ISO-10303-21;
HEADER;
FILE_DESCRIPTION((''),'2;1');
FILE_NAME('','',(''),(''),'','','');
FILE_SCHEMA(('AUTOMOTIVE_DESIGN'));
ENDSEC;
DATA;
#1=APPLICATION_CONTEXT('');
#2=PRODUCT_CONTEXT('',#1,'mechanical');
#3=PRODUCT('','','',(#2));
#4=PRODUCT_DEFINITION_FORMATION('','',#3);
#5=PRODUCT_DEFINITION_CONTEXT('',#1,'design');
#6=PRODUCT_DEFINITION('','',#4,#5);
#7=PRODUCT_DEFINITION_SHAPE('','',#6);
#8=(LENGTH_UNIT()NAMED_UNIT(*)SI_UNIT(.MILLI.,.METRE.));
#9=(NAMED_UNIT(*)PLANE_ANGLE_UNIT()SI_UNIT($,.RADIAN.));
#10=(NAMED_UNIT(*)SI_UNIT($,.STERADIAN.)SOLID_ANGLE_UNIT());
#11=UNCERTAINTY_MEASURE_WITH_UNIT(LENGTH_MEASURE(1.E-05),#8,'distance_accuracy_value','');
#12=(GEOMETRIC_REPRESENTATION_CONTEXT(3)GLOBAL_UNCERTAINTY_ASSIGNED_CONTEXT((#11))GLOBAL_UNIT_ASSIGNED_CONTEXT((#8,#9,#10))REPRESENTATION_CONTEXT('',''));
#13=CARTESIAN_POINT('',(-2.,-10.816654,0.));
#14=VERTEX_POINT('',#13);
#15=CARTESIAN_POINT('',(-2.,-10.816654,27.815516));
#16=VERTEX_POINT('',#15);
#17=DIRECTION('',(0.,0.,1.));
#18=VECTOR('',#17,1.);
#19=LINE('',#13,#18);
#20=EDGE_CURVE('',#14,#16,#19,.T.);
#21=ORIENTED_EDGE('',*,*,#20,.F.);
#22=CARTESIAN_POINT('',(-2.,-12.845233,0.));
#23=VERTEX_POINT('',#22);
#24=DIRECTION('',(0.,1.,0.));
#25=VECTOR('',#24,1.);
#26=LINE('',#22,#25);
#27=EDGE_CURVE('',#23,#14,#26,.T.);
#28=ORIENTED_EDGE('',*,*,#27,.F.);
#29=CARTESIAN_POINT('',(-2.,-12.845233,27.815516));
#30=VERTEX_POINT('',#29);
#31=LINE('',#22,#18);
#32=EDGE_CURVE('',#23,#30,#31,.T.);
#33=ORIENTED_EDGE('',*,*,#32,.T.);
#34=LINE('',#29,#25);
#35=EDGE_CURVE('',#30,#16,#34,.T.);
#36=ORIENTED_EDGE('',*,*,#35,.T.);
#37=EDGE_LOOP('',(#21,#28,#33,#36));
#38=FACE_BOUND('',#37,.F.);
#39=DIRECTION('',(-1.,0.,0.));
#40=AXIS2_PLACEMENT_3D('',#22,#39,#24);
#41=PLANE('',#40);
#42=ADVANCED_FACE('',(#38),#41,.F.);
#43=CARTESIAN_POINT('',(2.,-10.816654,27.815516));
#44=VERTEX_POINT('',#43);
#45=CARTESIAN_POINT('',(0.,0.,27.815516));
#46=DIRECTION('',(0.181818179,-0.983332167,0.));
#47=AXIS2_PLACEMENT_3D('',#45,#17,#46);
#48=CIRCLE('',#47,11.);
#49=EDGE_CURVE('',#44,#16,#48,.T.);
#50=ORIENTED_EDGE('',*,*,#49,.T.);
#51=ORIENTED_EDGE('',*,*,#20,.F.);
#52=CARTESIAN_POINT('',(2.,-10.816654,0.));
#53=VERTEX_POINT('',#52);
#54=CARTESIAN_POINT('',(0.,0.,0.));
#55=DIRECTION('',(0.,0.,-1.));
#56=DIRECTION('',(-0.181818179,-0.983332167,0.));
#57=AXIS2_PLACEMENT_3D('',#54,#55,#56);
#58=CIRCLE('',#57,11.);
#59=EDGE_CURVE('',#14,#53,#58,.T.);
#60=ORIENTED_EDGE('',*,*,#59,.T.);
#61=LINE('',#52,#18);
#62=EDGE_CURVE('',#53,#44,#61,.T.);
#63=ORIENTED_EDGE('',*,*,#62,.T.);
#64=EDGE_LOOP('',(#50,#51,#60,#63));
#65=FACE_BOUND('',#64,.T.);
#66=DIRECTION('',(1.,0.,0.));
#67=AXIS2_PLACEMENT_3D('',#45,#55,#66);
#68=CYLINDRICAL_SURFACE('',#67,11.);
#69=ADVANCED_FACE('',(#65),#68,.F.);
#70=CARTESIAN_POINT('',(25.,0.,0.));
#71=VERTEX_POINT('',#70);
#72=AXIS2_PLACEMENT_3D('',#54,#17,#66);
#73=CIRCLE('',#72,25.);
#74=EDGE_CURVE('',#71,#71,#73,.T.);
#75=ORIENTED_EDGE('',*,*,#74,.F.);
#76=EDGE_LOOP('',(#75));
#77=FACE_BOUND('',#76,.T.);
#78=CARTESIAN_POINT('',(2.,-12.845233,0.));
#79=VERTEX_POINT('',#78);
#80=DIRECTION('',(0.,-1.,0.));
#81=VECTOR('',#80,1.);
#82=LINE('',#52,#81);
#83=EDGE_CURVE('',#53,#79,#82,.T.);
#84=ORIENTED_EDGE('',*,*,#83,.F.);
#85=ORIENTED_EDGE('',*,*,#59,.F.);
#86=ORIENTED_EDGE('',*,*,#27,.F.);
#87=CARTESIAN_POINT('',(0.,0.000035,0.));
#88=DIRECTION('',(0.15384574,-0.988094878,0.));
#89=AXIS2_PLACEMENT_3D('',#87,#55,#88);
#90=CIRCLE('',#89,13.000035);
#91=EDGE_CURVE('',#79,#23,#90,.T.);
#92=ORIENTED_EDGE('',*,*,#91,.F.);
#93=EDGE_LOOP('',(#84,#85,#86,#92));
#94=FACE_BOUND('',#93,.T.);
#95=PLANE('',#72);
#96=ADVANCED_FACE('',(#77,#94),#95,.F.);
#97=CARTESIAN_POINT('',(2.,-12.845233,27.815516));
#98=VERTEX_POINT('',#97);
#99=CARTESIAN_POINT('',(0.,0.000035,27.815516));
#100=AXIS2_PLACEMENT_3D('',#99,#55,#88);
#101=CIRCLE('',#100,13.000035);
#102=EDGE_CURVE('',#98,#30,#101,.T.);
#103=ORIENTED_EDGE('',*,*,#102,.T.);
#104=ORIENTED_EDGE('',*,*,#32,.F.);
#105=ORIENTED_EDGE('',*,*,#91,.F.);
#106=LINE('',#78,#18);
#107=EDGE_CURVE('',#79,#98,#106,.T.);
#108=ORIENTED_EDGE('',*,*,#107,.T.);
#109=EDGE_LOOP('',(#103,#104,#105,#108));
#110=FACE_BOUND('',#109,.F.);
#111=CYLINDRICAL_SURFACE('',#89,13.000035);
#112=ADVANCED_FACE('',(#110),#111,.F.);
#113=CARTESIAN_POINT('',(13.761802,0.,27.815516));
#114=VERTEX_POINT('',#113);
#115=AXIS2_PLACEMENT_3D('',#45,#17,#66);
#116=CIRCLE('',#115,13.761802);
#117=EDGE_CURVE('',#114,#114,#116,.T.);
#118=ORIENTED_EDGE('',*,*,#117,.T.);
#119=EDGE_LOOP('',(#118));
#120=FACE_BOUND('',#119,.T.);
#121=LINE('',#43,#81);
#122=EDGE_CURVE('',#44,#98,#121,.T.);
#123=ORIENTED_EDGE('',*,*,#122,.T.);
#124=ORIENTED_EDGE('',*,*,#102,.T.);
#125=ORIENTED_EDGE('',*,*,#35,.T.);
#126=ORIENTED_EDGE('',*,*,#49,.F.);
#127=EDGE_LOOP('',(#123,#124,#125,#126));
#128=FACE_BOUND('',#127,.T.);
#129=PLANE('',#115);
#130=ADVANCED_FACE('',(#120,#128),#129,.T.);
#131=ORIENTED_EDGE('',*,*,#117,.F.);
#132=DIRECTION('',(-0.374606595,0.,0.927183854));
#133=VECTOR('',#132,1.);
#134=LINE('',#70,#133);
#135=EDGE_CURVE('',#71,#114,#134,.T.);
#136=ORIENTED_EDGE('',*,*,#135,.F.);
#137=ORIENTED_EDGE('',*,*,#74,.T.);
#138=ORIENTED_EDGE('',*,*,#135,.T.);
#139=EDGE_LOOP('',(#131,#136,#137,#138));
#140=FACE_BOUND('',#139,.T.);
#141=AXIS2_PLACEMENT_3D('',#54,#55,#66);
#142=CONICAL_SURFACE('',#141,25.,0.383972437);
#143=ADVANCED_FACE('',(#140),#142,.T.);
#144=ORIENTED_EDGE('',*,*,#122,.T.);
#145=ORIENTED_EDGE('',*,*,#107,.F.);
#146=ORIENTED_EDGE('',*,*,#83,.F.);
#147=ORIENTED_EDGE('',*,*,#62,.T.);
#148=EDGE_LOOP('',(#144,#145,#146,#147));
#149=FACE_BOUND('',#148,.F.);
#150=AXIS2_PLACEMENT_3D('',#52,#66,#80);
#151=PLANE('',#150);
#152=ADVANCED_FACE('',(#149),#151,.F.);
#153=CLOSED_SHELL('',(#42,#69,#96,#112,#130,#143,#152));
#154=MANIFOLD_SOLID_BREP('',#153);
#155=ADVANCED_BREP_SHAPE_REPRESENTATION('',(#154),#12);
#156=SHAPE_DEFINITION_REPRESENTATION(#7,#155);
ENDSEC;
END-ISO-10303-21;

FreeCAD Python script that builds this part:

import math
import FreeCAD as App
import Part
import Sketcher

V = App.Vector
Q = App.Units.Quantity

doc = App.newDocument("Part")
params = doc.addObject("Spreadsheet::Sheet", "Params")
for row, (alias, value) in enumerate([
    ("sketch1_width", "14 mm"),
    ("sketch1_length", "30 mm"),
    ("revolution_angle", "360 deg"),
], start=1):
    params.set(f"A{row}", alias)
    params.set(f"B{row}", "=" + value)
    params.setAlias(f"B{row}", alias)

body = doc.addObject("PartDesign::Body", "Body")

sketch1 = body.newObject("Sketcher::SketchObject", "Sketch")
sketch1.AttachmentSupport = (doc.getObject("XZ_Plane"), [""])
sketch1.MapMode = "FlatFace"
sketch1.addGeometry([
    Part.LineSegment(V(11, 27.8, 0), V(11, 0, 0)),
    Part.LineSegment(V(11, 0, 0), V(25, 0, 0)),
    Part.LineSegment(V(25, 0, 0), V(13.8, 27.8, 0)),
    Part.LineSegment(V(13.8, 27.8, 0), V(11, 27.8, 0)),
], False)
sketch1.addConstraint([
    Sketcher.Constraint("Coincident", 0, 2, 1, 1),
    Sketcher.Constraint("Coincident", 1, 2, 2, 1),
    Sketcher.Constraint("Coincident", 2, 2, 3, 1),
    Sketcher.Constraint("Coincident", 3, 2, 0, 1),
    Sketcher.Constraint("Vertical", 0),
    Sketcher.Constraint("Horizontal", 1),
    Sketcher.Constraint("Horizontal", 3),
    Sketcher.Constraint("PointOnObject", 0, 2, -1),
    Sketcher.Constraint("DistanceX", 1, 1, 1, 2, Q("14 mm")),
    Sketcher.Constraint("Angle", 2, Q("112 deg")),
    Sketcher.Constraint("Distance", 2, Q("30 mm")),
    Sketcher.Constraint("DistanceX", -1, 1, 0, 2, Q("11 mm")),
])
sketch1.setExpression("Constraints[8]", "Params.sketch1_width")
sketch1.setExpression("Constraints[10]", "Params.sketch1_length")
revolution = body.newObject("PartDesign::Revolution", "Revolution")
revolution.Profile = sketch1
revolution.ReferenceAxis = (sketch1, ["V_Axis"])
revolution.setExpression("Angle", "Params.revolution_angle")

sketch2 = body.newObject("Sketcher::SketchObject", "Sketch001")
sketch2.AttachmentSupport = (doc.getObject("XY_Plane"), [""])
sketch2.MapMode = "FlatFace"
sketch2.addGeometry([
    Part.LineSegment(V(2, -10.8, 0), V(2, -12.8, 0)),
    Part.ArcOfCircle(Part.Circle(V(0, 0, 0), V(0, 0, 1), 13), math.radians(-98.85), math.radians(-81.15)),
    Part.LineSegment(V(-2, -12.8, 0), V(-2, -10.8, 0)),
    Part.ArcOfCircle(Part.Circle(V(0, 0, 0), V(0, 0, 1), 11), math.radians(-100), math.radians(-80)),
], False)
sketch2.addConstraint([
    Sketcher.Constraint("Coincident", 0, 2, 1, 2),
    Sketcher.Constraint("Coincident", 1, 1, 2, 1),
    Sketcher.Constraint("Coincident", 2, 2, 3, 1),
    Sketcher.Constraint("Coincident", 3, 2, 0, 1),
    Sketcher.Constraint("Vertical", 0),
    Sketcher.Constraint("Vertical", 2),
    Sketcher.Constraint("Symmetric", 0, 2, 1, 1, -2),
    Sketcher.Constraint("PointOnObject", 3, 3, -2),
    Sketcher.Constraint("DistanceX", -1, 1, 0, 2, Q("2 mm")),
    Sketcher.Constraint("Radius", 3, Q("11.00001 mm")),
    Sketcher.Constraint("Radius", 1, Q("13.000035 mm")),
    Sketcher.Constraint("DistanceY", 0, 2, 0, 1, Q("2.028579 mm")),
    Sketcher.Constraint("DistanceY", 0, 2, -1, 1, Q("12.845233 mm")),
])
pocket1 = body.newObject("PartDesign::Pocket", "Pocket")
pocket1.Profile = sketch2
pocket1.Type = "ThroughAll"
pocket1.Reversed = True

doc.recompute()
